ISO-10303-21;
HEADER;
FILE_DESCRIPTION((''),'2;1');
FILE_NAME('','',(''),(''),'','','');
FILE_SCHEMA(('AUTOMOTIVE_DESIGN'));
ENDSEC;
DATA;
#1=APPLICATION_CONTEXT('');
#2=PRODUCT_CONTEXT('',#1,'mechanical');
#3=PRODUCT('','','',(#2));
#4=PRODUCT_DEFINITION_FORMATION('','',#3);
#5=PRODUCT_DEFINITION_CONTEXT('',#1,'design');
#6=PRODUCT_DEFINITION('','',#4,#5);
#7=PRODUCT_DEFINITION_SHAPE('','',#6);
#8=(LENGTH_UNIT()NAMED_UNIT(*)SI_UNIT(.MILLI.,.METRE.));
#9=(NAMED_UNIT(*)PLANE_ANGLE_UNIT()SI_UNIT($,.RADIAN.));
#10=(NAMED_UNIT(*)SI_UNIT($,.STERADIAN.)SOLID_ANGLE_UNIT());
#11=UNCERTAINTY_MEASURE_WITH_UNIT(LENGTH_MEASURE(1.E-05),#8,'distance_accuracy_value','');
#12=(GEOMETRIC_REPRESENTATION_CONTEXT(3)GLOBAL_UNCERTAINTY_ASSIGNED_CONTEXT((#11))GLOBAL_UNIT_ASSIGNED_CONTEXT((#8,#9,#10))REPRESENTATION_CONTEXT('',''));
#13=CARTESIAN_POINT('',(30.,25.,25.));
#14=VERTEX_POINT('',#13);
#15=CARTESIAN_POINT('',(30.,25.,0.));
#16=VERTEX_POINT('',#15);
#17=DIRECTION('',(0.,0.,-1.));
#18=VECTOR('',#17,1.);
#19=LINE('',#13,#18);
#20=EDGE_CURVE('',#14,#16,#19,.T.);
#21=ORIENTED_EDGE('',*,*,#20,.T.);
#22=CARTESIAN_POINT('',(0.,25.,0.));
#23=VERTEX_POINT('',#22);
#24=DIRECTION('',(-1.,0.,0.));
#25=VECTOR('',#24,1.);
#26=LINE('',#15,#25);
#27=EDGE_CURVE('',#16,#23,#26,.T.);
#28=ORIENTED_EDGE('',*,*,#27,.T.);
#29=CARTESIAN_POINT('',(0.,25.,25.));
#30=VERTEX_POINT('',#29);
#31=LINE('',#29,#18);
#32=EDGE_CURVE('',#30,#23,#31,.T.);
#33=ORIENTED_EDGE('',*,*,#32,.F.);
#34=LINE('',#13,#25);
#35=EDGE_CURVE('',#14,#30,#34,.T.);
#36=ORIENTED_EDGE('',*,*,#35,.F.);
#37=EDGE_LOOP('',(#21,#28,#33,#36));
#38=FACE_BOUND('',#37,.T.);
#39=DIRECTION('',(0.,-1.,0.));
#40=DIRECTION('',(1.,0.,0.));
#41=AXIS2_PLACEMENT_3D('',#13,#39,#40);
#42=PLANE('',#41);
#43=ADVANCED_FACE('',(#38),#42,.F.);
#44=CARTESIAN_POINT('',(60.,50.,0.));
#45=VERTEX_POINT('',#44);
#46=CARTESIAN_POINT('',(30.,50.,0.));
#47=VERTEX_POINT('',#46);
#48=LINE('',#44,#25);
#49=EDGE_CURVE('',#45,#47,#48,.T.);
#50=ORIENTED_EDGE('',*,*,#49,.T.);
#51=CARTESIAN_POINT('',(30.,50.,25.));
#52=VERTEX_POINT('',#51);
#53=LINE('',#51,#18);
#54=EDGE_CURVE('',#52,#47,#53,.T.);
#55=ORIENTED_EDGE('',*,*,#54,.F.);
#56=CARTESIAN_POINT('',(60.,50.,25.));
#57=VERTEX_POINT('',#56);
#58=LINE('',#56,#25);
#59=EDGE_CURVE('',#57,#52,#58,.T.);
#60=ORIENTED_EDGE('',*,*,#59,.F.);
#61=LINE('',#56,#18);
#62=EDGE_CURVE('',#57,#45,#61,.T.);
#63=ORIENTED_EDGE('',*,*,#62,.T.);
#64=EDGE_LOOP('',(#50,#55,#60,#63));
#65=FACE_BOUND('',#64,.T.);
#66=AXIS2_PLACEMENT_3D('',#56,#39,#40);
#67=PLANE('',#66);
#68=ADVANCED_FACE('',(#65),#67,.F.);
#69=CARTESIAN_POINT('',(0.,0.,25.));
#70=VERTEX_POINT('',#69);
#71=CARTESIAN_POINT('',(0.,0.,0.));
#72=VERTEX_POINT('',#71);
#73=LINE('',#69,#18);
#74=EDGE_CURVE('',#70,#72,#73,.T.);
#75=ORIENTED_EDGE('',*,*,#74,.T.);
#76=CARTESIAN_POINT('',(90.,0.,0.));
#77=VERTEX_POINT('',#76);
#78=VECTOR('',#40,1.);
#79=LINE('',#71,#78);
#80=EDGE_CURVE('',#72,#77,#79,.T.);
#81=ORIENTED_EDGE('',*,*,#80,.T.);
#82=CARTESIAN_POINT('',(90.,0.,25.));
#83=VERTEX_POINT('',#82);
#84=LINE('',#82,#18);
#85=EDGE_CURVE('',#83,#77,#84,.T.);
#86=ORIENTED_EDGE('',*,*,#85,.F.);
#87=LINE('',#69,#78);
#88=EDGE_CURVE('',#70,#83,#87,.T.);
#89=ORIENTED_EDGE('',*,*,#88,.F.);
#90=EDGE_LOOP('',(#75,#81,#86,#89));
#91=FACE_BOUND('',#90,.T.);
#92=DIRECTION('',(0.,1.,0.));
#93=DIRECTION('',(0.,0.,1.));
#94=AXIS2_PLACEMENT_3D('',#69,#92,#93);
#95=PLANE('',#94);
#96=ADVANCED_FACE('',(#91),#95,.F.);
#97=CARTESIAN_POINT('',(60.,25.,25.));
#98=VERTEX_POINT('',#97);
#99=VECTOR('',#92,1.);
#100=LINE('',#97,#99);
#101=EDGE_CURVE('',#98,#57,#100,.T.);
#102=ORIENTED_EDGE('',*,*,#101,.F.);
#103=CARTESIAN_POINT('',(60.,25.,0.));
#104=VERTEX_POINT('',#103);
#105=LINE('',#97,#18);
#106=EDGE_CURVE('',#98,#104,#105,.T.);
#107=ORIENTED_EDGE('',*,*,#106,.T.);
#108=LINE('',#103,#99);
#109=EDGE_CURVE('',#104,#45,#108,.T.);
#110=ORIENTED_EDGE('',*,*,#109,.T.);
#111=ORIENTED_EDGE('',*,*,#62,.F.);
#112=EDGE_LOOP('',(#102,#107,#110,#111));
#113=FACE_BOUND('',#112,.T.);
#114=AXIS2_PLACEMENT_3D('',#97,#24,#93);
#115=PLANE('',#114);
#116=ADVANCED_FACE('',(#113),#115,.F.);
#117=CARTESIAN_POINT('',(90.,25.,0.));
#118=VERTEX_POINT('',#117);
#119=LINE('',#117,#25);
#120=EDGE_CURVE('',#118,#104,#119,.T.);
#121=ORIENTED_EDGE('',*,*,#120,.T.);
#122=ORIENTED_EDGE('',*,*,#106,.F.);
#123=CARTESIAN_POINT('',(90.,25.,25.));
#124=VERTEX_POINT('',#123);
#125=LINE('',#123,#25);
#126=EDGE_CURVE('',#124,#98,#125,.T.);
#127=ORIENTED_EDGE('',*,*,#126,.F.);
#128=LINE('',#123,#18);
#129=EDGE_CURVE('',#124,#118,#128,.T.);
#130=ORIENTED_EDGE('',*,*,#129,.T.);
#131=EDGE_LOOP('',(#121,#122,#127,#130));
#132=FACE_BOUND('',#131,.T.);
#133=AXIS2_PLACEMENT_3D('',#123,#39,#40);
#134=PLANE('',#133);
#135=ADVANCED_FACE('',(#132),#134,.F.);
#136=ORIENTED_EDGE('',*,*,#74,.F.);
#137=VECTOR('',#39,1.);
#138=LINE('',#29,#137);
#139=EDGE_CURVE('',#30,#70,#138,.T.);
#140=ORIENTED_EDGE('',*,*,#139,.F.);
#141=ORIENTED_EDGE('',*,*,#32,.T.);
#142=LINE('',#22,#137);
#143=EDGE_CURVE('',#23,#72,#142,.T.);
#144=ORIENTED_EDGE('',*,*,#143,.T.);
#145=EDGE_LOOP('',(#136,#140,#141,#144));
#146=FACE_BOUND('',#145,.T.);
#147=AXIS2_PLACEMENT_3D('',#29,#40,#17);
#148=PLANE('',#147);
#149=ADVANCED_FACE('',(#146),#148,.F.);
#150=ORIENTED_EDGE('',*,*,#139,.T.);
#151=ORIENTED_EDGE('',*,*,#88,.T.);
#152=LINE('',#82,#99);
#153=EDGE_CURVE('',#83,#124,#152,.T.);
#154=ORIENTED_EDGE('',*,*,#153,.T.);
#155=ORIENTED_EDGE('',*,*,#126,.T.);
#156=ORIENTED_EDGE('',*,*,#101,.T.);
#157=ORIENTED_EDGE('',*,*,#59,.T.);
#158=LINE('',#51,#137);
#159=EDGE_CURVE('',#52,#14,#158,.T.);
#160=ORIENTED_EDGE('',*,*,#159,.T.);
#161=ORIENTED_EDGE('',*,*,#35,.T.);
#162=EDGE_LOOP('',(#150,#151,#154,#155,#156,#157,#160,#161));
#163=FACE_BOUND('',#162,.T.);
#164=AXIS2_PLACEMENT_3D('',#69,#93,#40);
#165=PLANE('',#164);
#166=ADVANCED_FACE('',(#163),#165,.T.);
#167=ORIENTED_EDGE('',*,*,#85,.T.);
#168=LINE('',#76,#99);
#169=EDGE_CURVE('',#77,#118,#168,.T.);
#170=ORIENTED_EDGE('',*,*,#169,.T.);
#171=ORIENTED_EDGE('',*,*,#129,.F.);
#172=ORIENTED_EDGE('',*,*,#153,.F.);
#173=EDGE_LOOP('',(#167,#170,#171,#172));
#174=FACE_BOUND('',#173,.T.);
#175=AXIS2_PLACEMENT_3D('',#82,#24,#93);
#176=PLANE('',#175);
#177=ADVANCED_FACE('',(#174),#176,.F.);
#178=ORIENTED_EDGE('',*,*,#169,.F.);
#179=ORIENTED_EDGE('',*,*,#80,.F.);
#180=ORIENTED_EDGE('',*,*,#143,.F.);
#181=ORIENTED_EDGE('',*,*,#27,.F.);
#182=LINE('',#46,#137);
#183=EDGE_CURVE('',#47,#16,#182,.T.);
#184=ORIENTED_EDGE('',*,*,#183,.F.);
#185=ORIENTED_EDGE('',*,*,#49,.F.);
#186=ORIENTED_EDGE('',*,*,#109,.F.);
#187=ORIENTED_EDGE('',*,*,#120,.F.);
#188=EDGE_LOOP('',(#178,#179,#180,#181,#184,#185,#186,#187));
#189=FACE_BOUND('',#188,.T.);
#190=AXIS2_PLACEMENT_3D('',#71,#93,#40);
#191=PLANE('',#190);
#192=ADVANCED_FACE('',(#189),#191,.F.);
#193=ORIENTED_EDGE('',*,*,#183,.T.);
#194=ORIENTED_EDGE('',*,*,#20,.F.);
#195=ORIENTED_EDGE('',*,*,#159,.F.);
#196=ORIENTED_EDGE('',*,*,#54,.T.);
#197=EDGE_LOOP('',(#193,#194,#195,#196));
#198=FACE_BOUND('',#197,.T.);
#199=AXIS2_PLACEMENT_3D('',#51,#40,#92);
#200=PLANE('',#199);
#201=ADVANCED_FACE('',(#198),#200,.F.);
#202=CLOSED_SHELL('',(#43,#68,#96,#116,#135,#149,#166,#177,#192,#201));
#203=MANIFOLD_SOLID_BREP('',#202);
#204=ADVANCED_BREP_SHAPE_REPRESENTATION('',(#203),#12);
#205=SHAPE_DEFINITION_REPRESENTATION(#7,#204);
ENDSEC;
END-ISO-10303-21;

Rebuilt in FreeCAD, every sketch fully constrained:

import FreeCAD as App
import Part
import Sketcher

V = App.Vector


def add_polygon(sketch, points):
    """Adds a closed chain of lines whose ends are joined by coincident constraints."""
    first, n = sketch.GeometryCount, len(points)
    for a, b in zip(points, points[1:] + points[:1]):
        sketch.addGeometry(Part.LineSegment(App.Vector(*a, 0), App.Vector(*b, 0)), False)
    for i in range(n):
        sketch.addConstraint(Sketcher.Constraint("Coincident", first + i, 2, first + (i + 1) % n, 1))

doc = App.newDocument("Part")
body = doc.addObject("PartDesign::Body", "Body")

# Sketch on XY plane
sketch1 = body.newObject("Sketcher::SketchObject", "Sketch")
sketch1.AttachmentSupport = (doc.getObject("XY_Plane"), [""])
sketch1.MapMode = "FlatFace"
add_polygon(sketch1, [(0, 0), (90, 0), (90, 25), (60, 25), (60, 50), (30, 50), (30, 25), (0, 25)])  # lines 0-7
sketch1.addConstraint([
    Sketcher.Constraint("Horizontal", 0),
    Sketcher.Constraint("Vertical", 1),
    Sketcher.Constraint("Horizontal", 2),
    Sketcher.Constraint("Vertical", 3),
    Sketcher.Constraint("Horizontal", 4),
    Sketcher.Constraint("Vertical", 5),
    Sketcher.Constraint("Horizontal", 6),
    Sketcher.Constraint("Vertical", 7),
    Sketcher.Constraint("Coincident", 7, 2, -1, 1),
    Sketcher.Constraint("Horizontal", 2, 2, 5, 2),
    Sketcher.Constraint("Equal", 2, 4),
    Sketcher.Constraint("Equal", 4, 6),
    Sketcher.Constraint("Equal", 1, 3),
    Sketcher.Constraint("DistanceX", 0, 1, 0, 2, 90.0),
    Sketcher.Constraint("DistanceY", 1, 1, 1, 2, 25.0),
])
pad1 = body.newObject("PartDesign::Pad", "Pad")
pad1.Profile = sketch1
pad1.Length = 25

doc.recompute()
